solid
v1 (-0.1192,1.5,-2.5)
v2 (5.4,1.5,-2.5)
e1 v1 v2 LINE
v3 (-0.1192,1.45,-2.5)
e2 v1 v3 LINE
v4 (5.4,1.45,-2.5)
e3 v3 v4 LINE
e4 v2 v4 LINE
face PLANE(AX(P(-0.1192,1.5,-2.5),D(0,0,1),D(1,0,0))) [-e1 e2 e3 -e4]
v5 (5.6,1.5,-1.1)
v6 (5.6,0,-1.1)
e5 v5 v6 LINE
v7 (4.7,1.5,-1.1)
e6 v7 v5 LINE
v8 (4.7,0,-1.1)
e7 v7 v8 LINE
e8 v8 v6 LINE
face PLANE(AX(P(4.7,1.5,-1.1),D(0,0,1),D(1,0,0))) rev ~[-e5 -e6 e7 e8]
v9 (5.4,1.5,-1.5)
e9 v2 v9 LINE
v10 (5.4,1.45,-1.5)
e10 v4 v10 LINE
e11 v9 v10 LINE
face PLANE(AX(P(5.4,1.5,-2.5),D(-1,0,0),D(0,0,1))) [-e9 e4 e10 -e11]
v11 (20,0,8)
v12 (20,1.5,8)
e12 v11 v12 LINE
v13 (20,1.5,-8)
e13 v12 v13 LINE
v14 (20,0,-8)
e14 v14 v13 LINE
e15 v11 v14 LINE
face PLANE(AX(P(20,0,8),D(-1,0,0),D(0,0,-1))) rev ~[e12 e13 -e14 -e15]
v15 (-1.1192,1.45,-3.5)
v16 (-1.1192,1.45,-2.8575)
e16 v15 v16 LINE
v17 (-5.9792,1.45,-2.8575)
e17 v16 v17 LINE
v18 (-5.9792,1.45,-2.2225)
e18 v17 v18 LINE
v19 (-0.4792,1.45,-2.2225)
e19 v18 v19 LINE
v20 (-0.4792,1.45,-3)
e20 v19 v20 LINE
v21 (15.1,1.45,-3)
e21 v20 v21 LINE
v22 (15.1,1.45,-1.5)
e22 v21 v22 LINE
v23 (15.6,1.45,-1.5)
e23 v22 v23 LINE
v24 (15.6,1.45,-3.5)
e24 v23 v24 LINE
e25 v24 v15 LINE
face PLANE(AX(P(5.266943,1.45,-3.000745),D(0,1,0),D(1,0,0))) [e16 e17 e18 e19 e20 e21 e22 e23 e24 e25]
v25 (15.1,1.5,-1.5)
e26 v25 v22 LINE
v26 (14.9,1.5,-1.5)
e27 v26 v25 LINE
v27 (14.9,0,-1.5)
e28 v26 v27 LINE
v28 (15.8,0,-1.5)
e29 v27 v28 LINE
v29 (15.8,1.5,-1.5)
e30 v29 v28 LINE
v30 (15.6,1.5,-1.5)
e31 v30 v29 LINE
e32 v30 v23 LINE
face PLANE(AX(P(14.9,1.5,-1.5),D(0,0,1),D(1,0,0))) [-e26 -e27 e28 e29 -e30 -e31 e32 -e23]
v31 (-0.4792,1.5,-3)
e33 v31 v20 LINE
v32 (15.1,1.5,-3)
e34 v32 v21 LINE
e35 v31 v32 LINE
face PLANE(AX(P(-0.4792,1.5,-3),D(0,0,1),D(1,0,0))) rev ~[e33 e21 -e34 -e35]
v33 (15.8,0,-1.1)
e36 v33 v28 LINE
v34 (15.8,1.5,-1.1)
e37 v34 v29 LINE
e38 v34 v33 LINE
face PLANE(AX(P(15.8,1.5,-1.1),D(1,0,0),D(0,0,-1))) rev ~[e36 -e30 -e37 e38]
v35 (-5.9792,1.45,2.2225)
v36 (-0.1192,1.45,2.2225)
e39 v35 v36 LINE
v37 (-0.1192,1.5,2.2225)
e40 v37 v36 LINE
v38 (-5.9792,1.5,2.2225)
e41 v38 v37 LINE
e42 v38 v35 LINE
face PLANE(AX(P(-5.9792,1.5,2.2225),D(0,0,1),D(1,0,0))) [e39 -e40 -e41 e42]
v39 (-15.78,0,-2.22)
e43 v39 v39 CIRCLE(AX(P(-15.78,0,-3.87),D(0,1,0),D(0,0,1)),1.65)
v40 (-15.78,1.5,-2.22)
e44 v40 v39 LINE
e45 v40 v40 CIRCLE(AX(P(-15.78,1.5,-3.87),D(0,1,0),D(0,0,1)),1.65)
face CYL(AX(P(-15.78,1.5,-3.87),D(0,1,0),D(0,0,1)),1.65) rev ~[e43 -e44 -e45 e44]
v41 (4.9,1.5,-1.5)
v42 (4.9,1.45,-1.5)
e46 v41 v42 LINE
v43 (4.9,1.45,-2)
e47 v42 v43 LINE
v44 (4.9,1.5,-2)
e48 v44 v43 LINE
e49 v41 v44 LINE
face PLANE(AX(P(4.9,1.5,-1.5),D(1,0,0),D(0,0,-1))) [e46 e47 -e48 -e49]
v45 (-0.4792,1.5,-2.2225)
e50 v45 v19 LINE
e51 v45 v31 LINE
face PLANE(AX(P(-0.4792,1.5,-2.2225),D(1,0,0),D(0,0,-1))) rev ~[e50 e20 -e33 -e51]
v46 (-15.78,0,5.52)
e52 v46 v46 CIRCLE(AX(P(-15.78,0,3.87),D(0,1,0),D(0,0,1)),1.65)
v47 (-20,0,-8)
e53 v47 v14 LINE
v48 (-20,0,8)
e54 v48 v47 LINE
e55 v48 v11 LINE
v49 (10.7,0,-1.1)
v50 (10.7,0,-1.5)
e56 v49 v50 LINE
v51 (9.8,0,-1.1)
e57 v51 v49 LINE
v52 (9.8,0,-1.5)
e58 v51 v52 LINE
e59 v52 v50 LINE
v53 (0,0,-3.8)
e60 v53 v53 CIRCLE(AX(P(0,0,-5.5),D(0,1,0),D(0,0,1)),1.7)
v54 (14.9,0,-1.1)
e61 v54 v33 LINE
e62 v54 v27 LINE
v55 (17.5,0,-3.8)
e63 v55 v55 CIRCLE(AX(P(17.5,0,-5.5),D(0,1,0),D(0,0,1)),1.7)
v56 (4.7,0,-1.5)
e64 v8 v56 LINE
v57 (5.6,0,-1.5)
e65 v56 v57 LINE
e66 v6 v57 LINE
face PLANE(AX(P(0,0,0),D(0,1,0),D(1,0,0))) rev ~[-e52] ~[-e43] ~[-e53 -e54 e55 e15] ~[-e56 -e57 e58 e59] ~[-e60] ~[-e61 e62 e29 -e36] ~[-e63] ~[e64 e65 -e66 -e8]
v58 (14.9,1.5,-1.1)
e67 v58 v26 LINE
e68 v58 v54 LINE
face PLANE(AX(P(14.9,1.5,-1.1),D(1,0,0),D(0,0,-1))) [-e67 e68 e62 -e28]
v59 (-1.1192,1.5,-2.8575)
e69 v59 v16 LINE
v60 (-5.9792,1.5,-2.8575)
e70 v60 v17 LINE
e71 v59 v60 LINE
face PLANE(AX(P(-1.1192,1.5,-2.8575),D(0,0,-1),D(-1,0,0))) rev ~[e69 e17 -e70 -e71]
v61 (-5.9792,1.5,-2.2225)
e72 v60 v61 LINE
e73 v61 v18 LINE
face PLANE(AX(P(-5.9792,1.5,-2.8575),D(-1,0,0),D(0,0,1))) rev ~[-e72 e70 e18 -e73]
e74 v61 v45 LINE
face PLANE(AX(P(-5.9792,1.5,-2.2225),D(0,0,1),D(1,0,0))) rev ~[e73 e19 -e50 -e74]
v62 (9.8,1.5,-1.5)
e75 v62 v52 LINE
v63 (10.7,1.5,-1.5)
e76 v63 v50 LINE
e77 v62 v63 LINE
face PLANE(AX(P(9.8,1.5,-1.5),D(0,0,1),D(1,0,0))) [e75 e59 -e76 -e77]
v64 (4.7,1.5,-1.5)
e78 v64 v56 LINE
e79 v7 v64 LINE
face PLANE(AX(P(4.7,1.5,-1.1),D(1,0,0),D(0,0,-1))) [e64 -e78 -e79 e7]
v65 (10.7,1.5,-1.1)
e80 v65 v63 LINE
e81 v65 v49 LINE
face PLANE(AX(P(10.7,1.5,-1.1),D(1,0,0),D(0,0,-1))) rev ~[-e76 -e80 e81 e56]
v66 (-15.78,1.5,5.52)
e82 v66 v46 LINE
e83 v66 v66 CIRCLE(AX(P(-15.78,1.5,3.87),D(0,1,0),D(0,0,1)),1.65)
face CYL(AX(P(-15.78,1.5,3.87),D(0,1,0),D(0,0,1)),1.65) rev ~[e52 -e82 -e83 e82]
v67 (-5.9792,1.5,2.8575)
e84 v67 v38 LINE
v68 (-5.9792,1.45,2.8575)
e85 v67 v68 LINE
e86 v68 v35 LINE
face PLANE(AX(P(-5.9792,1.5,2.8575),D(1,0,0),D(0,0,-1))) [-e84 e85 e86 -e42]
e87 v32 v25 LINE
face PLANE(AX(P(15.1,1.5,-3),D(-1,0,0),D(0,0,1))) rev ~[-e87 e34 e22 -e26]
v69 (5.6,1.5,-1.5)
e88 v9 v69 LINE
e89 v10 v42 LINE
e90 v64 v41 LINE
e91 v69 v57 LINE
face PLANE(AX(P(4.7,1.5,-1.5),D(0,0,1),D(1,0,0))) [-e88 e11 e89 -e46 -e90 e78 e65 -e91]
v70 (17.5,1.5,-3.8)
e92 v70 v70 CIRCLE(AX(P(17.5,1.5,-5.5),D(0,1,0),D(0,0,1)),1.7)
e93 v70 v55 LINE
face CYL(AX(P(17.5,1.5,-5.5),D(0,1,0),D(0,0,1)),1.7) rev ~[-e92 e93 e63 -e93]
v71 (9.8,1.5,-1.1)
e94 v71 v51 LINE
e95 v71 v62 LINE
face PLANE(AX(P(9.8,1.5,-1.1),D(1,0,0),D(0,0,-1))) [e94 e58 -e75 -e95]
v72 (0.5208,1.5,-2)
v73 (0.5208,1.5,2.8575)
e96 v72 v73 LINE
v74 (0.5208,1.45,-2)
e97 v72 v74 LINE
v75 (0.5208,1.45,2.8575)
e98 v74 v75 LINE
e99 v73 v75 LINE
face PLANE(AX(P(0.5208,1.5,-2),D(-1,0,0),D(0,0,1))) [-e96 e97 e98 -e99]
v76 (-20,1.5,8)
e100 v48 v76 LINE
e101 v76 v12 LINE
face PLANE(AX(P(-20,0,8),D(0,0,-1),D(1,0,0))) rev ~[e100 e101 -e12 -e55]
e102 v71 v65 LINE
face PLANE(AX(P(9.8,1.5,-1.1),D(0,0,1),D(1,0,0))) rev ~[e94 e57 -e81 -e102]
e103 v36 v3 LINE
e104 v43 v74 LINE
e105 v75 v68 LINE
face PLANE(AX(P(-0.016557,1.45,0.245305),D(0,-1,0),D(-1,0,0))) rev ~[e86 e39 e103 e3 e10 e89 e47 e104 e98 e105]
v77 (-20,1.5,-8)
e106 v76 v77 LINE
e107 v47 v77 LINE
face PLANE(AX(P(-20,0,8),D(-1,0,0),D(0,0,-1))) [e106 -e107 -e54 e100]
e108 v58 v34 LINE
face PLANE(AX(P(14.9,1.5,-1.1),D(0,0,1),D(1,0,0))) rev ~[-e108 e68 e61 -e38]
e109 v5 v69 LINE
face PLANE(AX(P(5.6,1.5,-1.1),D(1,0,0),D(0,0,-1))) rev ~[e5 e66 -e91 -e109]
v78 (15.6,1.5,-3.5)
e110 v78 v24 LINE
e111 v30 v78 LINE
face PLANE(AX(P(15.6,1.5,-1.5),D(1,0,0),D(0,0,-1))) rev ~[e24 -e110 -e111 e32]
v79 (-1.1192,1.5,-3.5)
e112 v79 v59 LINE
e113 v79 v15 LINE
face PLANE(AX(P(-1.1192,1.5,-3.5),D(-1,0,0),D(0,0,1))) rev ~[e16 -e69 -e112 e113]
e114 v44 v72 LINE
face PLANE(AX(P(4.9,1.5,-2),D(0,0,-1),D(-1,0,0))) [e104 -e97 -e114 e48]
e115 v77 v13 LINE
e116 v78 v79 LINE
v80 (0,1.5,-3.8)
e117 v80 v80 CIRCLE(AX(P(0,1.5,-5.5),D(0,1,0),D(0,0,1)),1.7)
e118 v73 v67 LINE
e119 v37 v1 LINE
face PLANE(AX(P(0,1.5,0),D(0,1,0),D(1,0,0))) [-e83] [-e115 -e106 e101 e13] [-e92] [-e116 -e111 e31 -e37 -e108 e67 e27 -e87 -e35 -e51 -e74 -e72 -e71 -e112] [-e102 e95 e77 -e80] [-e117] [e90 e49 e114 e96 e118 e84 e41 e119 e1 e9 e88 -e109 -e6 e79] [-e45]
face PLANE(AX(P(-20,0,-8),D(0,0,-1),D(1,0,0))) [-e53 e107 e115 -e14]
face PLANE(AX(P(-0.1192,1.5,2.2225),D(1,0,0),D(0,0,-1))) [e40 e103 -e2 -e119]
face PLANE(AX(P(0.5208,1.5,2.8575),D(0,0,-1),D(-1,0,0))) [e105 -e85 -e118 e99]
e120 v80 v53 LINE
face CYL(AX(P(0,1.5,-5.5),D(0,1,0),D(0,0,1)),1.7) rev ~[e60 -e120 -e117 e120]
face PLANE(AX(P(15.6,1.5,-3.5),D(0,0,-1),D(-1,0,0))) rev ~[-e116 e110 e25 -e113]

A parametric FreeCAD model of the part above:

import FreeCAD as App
import Part
import Sketcher
from FreeCAD import Vector
Q = App.Units.Quantity


def add_polygon(sketch, points):
    """Adds a closed chain of lines whose ends are joined by coincident constraints."""
    first, n = sketch.GeometryCount, len(points)
    for a, b in zip(points, points[1:] + points[:1]):
        sketch.addGeometry(Part.LineSegment(App.Vector(*a, 0), App.Vector(*b, 0)), False)
    for i in range(n):
        sketch.addConstraint(Sketcher.Constraint("Coincident", first + i, 2, first + (i + 1) % n, 1))

doc = App.newDocument("Part")
params = doc.addObject("Spreadsheet::Sheet", "Params")
for row, (alias, value) in enumerate([
    ("sketch1_width", "40 mm"),
    ("sketch1_height", "16 mm"),
    ("pad1_length", "1.5 mm"),
    ("sketch2_diameter", "3.4 mm"),
    ("sketch3_width", "0.9 mm"),
    ("sketch3_height", "0.4 mm"),
    ("sketch4_diameter", "3.3 mm"),
    ("sketch5_height", "1 mm"),
    ("sketch5_height2", "2 mm"),
    ("sketch5_width", "0.5 mm"),
    ("sketch5_width2", "6.5 mm"),
    ("sketch5_width3", "5.5 mm"),
    ("pocket4_length", "0.05 mm"),
], start=1):
    params.set(f"A{row}", alias)
    params.set(f"B{row}", "=" + value)
    params.setAlias(f"B{row}", alias)

body = doc.addObject("PartDesign::Body", "Body")

sketch1 = doc.addObject("Sketcher::SketchObject", "Sketch")
body.addObject(sketch1)
sketch1.AttachmentSupport = (doc.XZ_Plane, [""])
sketch1.MapMode = "FlatFace"
add_polygon(sketch1, [(-20, -8), (-20, 8), (20, 8), (20, -8)])
sketch1.addConstraint([
    Sketcher.Constraint("Vertical", 0),
    Sketcher.Constraint("Horizontal", 1),
    Sketcher.Constraint("Vertical", 2),
    Sketcher.Constraint("Horizontal", 3),
    Sketcher.Constraint("Symmetric", 0, 2, 2, 2, -1, 1),
    Sketcher.Constraint("DistanceX", 1, 1, 1, 2, Q("40 mm")),
    Sketcher.Constraint("DistanceY", 0, 1, 0, 2, Q("16 mm")),
])
sketch1.setExpression("Constraints[9]", "Params.sketch1_width")
sketch1.setExpression("Constraints[10]", "Params.sketch1_height")
pad1 = doc.addObject("PartDesign::Pad", "Pad")
body.addObject(pad1)
pad1.Profile = sketch1
pad1.setExpression("Length", "Params.pad1_length")
pad1.Reversed = True

sketch2 = doc.addObject("Sketcher::SketchObject", "Sketch001")
body.addObject(sketch2)
sketch2.AttachmentSupport = (doc.XZ_Plane, [""])
sketch2.MapMode = "FlatFace"
sketch2.AttachmentOffset = App.Placement(Vector(0, 0, -1.5), App.Rotation())
sketch2.addGeometry([
    Part.Circle(Vector(0, -5.5, 0), Vector(0, 0, 1), 1.7),
    Part.Circle(Vector(17.5, -5.5, 0), Vector(0, 0, 1), 1.7),
], False)
sketch2.addConstraint([
    Sketcher.Constraint("Equal", 0, 1),
    Sketcher.Constraint("PointOnObject", 0, 3, -2),
    Sketcher.Constraint("Horizontal", 0, 3, 1, 3),
    Sketcher.Constraint("Diameter", 0, Q("3.4 mm")),
    Sketcher.Constraint("DistanceY", 0, 3, -1, 1, Q("5.5 mm")),
    Sketcher.Constraint("DistanceX", -1, 1, 1, 3, Q("17.5 mm")),
])
sketch2.setExpression("Constraints[3]", "Params.sketch2_diameter")
pocket1 = doc.addObject("PartDesign::Pocket", "Pocket")
body.addObject(pocket1)
pocket1.Profile = sketch2
pocket1.Type = "ThroughAll"
pocket1.Reversed = True

sketch3 = doc.addObject("Sketcher::SketchObject", "Sketch002")
body.addObject(sketch3)
sketch3.AttachmentSupport = (doc.XZ_Plane, [""])
sketch3.MapMode = "FlatFace"
sketch3.AttachmentOffset = App.Placement(Vector(0, 0, -1.5), App.Rotation())
add_polygon(sketch3, [(14.9, -1.5), (14.9, -1.1), (15.8, -1.1), (15.8, -1.5)])
add_polygon(sketch3, [(4.7, -1.5), (4.7, -1.1), (5.6, -1.1), (5.6, -1.5)])
add_polygon(sketch3, [(9.8, -1.5), (9.8, -1.1), (10.7, -1.1), (10.7, -1.5)])
sketch3.addConstraint([
    Sketcher.Constraint("Vertical", 0),
    Sketcher.Constraint("Horizontal", 1),
    Sketcher.Constraint("Vertical", 2),
    Sketcher.Constraint("Horizontal", 3),
    Sketcher.Constraint("Vertical", 4),
    Sketcher.Constraint("Horizontal", 5),
    Sketcher.Constraint("Vertical", 6),
    Sketcher.Constraint("Horizontal", 7),
    Sketcher.Constraint("Vertical", 8),
    Sketcher.Constraint("Horizontal", 9),
    Sketcher.Constraint("Vertical", 10),
    Sketcher.Constraint("Horizontal", 11),
    Sketcher.Constraint("Horizontal", 1, 2, 4, 2),
    Sketcher.Constraint("Horizontal", 3, 2, 6, 2),
    Sketcher.Constraint("Horizontal", 5, 2, 8, 2),
    Sketcher.Constraint("Horizontal", 7, 2, 10, 2),
    Sketcher.Constraint("Equal", 3, 5),
    Sketcher.Constraint("Equal", 7, 9),
    Sketcher.Constraint("DistanceX", 1, 1, 1, 2, Q("0.9 mm")),
    Sketcher.Constraint("DistanceY", 0, 1, 0, 2, Q("0.4 mm")),
    Sketcher.Constraint("DistanceX", -1, 1, 0, 2, Q("14.9 mm")),
    Sketcher.Constraint("DistanceY", 0, 2, -1, 1, Q("1.1 mm")),
    Sketcher.Constraint("DistanceX", -1, 1, 4, 2, Q("4.7 mm")),
    Sketcher.Constraint("DistanceX", -1, 1, 8, 2, Q("9.8 mm")),
])
sketch3.setExpression("Constraints[30]", "Params.sketch3_width")
sketch3.setExpression("Constraints[31]", "Params.sketch3_height")
pocket2 = doc.addObject("PartDesign::Pocket", "Pocket001")
body.addObject(pocket2)
pocket2.Profile = sketch3
pocket2.Type = "ThroughAll"
pocket2.Reversed = True

sketch4 = doc.addObject("Sketcher::SketchObject", "Sketch003")
body.addObject(sketch4)
sketch4.AttachmentSupport = (doc.XZ_Plane, [""])
sketch4.MapMode = "FlatFace"
sketch4.AttachmentOffset = App.Placement(Vector(0, 0, -1.5), App.Rotation())
sketch4.addGeometry([
    Part.Circle(Vector(-15.8, -3.9, 0), Vector(0, 0, 1), 1.6),
    Part.Circle(Vector(-15.8, 3.9, 0), Vector(0, 0, 1), 1.6),
], False)
sketch4.addConstraint([
    Sketcher.Constraint("Equal", 0, 1),
    Sketcher.Constraint("Symmetric", 0, 3, 1, 3, -1),
    Sketcher.Constraint("Diameter", 0, Q("3.3 mm")),
    Sketcher.Constraint("DistanceX", 0, 3, -1, 1, Q("15.78 mm")),
    Sketcher.Constraint("DistanceY", 0, 3, -1, 1, Q("3.87 mm")),
])
sketch4.setExpression("Constraints[2]", "Params.sketch4_diameter")
pocket3 = doc.addObject("PartDesign::Pocket", "Pocket002")
body.addObject(pocket3)
pocket3.Profile = sketch4
pocket3.Type = "ThroughAll"
pocket3.Reversed = True

sketch5 = doc.addObject("Sketcher::SketchObject", "Sketch004")
body.addObject(sketch5)
sketch5.AttachmentSupport = (doc.XZ_Plane, [""])
sketch5.MapMode = "FlatFace"
sketch5.AttachmentOffset = App.Placement(Vector(0, 0, -1.5), App.Rotation())
add_polygon(sketch5, [(4.9, -2), (4.9, -1.5), (5.4, -1.5), (5.4, -2.5), (-0.1, -2.5), (-0.1, 2.2), (-6, 2.2), (-6, 2.9), (0.5, 2.9), (0.5, -2)])
add_polygon(sketch5, [(-6, -2.9), (-6, -2.2), (-0.5, -2.2), (-0.5, -3), (15.1, -3), (15.1, -1.5), (15.6, -1.5), (15.6, -3.5), (-1.1, -3.5), (-1.1, -2.9)])
sketch5.addConstraint([
    Sketcher.Constraint("Vertical", 0),
    Sketcher.Constraint("Horizontal", 1),
    Sketcher.Constraint("Vertical", 2),
    Sketcher.Constraint("Horizontal", 3),
    Sketcher.Constraint("Vertical", 4),
    Sketcher.Constraint("Horizontal", 5),
    Sketcher.Constraint("Vertical", 6),
    Sketcher.Constraint("Horizontal", 7),
    Sketcher.Constraint("Vertical", 8),
    Sketcher.Constraint("Horizontal", 9),
    Sketcher.Constraint("Vertical", 10),
    Sketcher.Constraint("Horizontal", 11),
    Sketcher.Constraint("Vertical", 12),
    Sketcher.Constraint("Horizontal", 13),
    Sketcher.Constraint("Vertical", 14),
    Sketcher.Constraint("Horizontal", 15),
    Sketcher.Constraint("Vertical", 16),
    Sketcher.Constraint("Horizontal", 17),
    Sketcher.Constraint("Vertical", 18),
    Sketcher.Constraint("Horizontal", 19),
    Sketcher.Constraint("Symmetric", 5, 2, 10, 2, -1),
    Sketcher.Constraint("Horizontal", 1, 2, 14, 2),
    Sketcher.Constraint("Equal", 1, 15),
    Sketcher.Constraint("Equal", 15, 0),
    Sketcher.Constraint("Equal", 6, 10),
    Sketcher.Constraint("DistanceY", 2, 2, 2, 1, Q("1 mm")),
    Sketcher.Constraint("DistanceY", 16, 2, 16, 1, Q("2 mm")),
    Sketcher.Constraint("DistanceX", 1, 1, 1, 2, Q("0.5 mm")),
    Sketcher.Constraint("DistanceX", 7, 1, 7, 2, Q("6.5 mm")),
    Sketcher.Constraint("DistanceX", 11, 1, 11, 2, Q("5.5 mm")),
    Sketcher.Constraint("DistanceY", 14, 1, 14, 2, Q("1.5 mm")),
    Sketcher.Constraint("DistanceY", 8, 2, -1, 1, Q("2 mm")),
    Sketcher.Constraint("DistanceX", 17, 2, 3, 2, Q("1 mm")),
    Sketcher.Constraint("DistanceX", 5, 2, 5, 1, Q("5.86 mm")),
    Sketcher.Constraint("DistanceX", -1, 1, 0, 2, Q("4.9 mm")),
    Sketcher.Constraint("DistanceX", -1, 1, 13, 2, Q("15.1 mm")),
    Sketcher.Constraint("DistanceY", 6, 1, 6, 2, Q("0.635 mm")),
    Sketcher.Constraint("DistanceY", 10, 2, 6, 2, Q("5.08 mm")),
    Sketcher.Constraint("DistanceX", 3, 2, 3, 1, Q("5.5192 mm")),
])
sketch5.setExpression("Constraints[45]", "Params.sketch5_height")
sketch5.setExpression("Constraints[46]", "Params.sketch5_height2")
sketch5.setExpression("Constraints[47]", "Params.sketch5_width")
sketch5.setExpression("Constraints[48]", "Params.sketch5_width2")
sketch5.setExpression("Constraints[49]", "Params.sketch5_width3")
pocket4 = doc.addObject("PartDesign::Pocket", "Pocket003")
body.addObject(pocket4)
pocket4.Profile = sketch5
pocket4.setExpression("Length", "Params.pocket4_length")
pocket4.Reversed = True

doc.recompute()
